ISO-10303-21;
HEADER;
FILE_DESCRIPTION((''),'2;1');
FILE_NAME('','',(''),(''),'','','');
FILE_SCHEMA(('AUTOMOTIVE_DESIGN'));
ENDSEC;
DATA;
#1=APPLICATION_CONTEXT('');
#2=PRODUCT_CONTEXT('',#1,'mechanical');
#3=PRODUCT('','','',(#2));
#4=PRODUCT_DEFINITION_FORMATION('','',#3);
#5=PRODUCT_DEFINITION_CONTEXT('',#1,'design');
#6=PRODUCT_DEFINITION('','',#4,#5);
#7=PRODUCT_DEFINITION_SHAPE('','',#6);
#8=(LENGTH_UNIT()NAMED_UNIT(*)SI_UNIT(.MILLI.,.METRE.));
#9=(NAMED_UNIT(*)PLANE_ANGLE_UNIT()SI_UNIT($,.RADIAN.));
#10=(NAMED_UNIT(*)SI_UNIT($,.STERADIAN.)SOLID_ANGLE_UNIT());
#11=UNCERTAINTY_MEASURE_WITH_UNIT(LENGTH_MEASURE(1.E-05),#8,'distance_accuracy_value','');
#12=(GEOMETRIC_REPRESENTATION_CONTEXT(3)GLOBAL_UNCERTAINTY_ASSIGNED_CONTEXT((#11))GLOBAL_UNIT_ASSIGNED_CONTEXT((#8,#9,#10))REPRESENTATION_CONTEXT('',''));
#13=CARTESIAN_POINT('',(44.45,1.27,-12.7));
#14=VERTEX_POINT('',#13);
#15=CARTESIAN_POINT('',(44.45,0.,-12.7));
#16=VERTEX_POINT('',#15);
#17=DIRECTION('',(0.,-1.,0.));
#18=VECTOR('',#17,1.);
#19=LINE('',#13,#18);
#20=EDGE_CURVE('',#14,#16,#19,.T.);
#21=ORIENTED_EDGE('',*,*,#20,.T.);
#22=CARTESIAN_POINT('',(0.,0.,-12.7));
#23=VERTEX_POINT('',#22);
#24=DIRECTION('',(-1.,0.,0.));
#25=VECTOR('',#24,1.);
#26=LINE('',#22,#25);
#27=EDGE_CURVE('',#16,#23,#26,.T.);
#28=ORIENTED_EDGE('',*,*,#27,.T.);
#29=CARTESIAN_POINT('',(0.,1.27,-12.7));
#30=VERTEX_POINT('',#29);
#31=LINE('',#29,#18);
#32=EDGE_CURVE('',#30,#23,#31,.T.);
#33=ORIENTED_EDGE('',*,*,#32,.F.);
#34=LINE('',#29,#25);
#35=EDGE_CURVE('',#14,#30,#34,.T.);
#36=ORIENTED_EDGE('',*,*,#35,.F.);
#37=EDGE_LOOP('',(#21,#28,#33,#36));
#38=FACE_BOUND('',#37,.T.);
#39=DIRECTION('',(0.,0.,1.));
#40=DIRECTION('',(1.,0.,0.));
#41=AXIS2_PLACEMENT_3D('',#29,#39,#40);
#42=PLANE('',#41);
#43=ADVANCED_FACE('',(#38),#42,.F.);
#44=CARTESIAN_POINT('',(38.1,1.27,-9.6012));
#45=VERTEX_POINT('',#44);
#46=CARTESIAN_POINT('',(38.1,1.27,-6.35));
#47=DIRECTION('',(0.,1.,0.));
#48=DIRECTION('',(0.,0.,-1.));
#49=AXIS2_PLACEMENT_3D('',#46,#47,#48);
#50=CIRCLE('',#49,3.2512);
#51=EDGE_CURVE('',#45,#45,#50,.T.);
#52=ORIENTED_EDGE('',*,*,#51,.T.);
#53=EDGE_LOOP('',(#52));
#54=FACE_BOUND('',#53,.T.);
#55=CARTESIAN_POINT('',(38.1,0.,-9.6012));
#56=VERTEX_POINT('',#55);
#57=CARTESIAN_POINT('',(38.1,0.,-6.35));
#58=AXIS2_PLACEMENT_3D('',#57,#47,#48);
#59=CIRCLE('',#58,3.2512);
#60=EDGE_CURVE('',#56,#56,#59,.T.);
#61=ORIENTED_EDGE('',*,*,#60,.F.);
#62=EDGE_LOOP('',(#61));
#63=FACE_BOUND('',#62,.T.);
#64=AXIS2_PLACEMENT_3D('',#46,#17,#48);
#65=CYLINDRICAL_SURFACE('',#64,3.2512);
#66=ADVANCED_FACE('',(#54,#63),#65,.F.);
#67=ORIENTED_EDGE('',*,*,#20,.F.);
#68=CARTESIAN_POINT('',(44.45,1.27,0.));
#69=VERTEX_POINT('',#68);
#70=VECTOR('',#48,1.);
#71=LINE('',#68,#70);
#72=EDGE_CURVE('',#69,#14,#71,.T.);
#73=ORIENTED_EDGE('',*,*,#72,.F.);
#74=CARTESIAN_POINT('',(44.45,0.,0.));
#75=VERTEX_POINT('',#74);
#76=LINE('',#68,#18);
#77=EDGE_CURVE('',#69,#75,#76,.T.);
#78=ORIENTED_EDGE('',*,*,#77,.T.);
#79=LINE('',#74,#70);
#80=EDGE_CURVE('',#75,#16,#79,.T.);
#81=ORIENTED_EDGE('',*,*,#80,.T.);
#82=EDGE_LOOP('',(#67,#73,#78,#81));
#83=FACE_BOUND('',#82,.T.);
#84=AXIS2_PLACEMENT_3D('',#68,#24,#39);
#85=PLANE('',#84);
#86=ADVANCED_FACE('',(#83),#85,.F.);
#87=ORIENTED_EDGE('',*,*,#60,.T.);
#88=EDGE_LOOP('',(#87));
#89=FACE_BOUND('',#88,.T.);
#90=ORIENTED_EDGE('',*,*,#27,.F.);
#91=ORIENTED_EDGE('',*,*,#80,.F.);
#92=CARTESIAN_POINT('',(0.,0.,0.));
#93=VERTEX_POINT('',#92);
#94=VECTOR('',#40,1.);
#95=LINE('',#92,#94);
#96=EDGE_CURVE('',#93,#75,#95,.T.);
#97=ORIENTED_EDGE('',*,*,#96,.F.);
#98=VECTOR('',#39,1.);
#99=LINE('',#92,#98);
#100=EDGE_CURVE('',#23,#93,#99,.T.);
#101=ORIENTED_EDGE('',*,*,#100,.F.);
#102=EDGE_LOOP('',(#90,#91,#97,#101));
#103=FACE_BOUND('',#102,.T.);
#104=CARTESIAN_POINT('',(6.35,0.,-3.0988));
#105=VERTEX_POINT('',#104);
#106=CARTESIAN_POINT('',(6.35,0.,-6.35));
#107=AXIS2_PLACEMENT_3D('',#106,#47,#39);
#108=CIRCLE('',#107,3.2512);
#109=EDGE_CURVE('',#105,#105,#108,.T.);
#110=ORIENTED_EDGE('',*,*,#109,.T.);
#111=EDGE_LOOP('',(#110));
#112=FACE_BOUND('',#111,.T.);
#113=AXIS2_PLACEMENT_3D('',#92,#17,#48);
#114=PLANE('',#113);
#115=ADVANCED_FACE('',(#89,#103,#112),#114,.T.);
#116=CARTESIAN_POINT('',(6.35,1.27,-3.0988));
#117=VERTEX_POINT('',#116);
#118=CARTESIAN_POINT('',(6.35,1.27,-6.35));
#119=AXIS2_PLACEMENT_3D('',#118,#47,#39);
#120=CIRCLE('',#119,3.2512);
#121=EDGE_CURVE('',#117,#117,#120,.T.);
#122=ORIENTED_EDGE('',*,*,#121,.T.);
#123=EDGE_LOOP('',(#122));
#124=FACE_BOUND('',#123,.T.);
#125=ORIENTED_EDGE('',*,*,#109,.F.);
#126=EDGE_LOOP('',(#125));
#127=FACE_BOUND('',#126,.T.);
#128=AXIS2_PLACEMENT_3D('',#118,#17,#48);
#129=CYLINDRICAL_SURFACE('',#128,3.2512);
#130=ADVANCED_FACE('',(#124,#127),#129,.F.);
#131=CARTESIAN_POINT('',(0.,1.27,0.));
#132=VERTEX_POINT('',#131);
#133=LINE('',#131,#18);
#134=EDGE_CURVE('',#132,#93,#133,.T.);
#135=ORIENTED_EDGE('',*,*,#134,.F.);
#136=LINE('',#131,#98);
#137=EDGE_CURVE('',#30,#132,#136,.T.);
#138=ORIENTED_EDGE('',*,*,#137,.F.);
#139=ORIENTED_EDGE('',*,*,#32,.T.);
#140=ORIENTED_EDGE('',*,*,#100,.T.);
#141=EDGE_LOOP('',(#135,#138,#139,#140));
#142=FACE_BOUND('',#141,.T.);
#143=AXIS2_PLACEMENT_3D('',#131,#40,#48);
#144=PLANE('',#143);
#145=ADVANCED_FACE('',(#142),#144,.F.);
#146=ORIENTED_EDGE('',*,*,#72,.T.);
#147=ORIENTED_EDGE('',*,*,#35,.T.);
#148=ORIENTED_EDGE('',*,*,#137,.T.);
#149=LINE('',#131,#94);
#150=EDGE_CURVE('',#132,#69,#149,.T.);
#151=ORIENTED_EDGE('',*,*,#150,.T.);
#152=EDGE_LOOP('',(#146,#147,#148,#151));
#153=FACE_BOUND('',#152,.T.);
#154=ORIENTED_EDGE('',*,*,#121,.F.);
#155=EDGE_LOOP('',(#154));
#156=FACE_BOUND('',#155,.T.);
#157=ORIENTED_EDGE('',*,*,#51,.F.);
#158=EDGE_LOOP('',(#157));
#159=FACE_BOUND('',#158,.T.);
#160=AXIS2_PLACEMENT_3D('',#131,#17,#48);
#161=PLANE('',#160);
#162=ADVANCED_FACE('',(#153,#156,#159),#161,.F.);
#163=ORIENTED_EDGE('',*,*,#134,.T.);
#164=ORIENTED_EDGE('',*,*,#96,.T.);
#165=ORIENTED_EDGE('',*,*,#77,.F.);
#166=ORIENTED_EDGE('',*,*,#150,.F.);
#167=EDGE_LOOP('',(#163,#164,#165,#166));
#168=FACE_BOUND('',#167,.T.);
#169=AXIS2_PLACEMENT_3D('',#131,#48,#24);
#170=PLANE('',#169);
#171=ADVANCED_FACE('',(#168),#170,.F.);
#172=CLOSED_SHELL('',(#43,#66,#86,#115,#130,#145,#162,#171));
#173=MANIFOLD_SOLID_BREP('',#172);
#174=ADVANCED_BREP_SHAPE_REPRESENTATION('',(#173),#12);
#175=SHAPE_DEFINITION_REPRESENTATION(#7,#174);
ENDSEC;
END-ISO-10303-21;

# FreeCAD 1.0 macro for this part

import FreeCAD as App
import Part
import Sketcher
Q = App.Units.Quantity


def add_polygon(sketch, points):
    """Adds a closed chain of lines whose ends are joined by coincident constraints."""
    first, n = sketch.GeometryCount, len(points)
    for a, b in zip(points, points[1:] + points[:1]):
        sketch.addGeometry(Part.LineSegment(App.Vector(*a, 0), App.Vector(*b, 0)), False)
    for i in range(n):
        sketch.addConstraint(Sketcher.Constraint("Coincident", first + i, 2, first + (i + 1) % n, 1))

doc = App.newDocument("Part")
params = doc.addObject("Spreadsheet::Sheet", "Params")
for row, (alias, value) in enumerate([
    ("sketch1_diameter", "0.256 in"),
    ("sketch1_height", "0.5 in"),
    ("sketch1_width", "1.75 in"),
    ("pad1_length", "0.05 in"),
], start=1):
    params.set(f"A{row}", alias)
    params.set(f"B{row}", "=" + value)
    params.setAlias(f"B{row}", alias)

body = doc.addObject("PartDesign::Body", "Body")

# Sketch on XZ plane
sketch1 = body.newObject("Sketcher::SketchObject", "Sketch")
sketch1.AttachmentSupport = (doc.getObject("XZ_Plane"), [""])
sketch1.MapMode = "FlatFace"
add_polygon(sketch1, [(0, -12.7), (0, 0), (44.5, 0), (44.5, -12.7)])  # lines 0-3
sketch1.addGeometry(Part.Circle(App.Vector(6.3, -6.3, 0), App.Vector(0, 0, 1), 3.3), False)  # 4
sketch1.addGeometry(Part.Circle(App.Vector(38.1, -6.3, 0), App.Vector(0, 0, 1), 3.3), False)  # 5
sketch1.addConstraint([
    Sketcher.Constraint("Vertical", 0),
    Sketcher.Constraint("Horizontal", 1),
    Sketcher.Constraint("Vertical", 2),
    Sketcher.Constraint("Horizontal", 3),
    Sketcher.Constraint("Coincident", 0, 2, -1, 1),
    Sketcher.Constraint("Equal", 4, 5),
    Sketcher.Constraint("Horizontal", 4, 3, 5, 3),
    Sketcher.Constraint("Diameter", 4, Q("0.256 in")),
    Sketcher.Constraint("DistanceY", 0, 1, 0, 2, Q("0.5 in")),
    Sketcher.Constraint("DistanceX", 1, 1, 1, 2, Q("1.75 in")),
    Sketcher.Constraint("DistanceX", -1, 1, 5, 3, Q("1.5 in")),
    Sketcher.Constraint("DistanceX", 4, 3, 1, 2, Q("1.5 in")),
    Sketcher.Constraint("DistanceY", 4, 3, -1, 1, Q("0.25 in")),
])
sketch1.setExpression("Constraints[11]", "Params.sketch1_diameter")
sketch1.setExpression("Constraints[12]", "Params.sketch1_height")
sketch1.setExpression("Constraints[13]", "Params.sketch1_width")
pad1 = body.newObject("PartDesign::Pad", "Pad")
pad1.Profile = sketch1
pad1.setExpression("Length", "Params.pad1_length")
pad1.Reversed = True

doc.recompute()
